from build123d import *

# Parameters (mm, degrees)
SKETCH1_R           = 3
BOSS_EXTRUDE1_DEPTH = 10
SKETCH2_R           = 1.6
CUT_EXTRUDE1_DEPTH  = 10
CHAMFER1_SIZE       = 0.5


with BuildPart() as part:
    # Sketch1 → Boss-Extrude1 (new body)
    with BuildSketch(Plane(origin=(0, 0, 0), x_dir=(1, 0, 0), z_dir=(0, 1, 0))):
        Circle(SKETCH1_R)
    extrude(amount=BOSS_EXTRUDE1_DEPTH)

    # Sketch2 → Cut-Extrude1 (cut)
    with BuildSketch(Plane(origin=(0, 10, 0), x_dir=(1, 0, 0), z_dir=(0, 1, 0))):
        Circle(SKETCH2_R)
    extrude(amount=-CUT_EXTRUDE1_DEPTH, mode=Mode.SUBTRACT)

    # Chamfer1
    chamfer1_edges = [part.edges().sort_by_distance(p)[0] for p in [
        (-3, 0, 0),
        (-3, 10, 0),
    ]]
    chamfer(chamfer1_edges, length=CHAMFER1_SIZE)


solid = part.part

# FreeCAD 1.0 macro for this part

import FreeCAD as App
import Part
import Sketcher
Q = App.Units.Quantity


def edges_at(feature, points):
    """Names of the edges that pass closest to the given points."""
    edges = feature.Shape.Edges
    near = lambda p: min(range(len(edges)), key=lambda i: edges[i].distToShape(Part.Vertex(*p))[0])
    return sorted({f"Edge{near(p) + 1}" for p in points})

doc = App.newDocument("Part")
params = doc.addObject("Spreadsheet::Sheet", "Params")
for row, (alias, value) in enumerate([
    ("sketch1_diameter", "6 mm"),
    ("pad1_length", "10 mm"),
    ("sketch2_diameter", "3.2 mm"),
    ("pocket1_length", "10 mm"),
    ("chamfer_size", "0.5 mm"),
], start=1):
    params.set(f"A{row}", alias)
    params.set(f"B{row}", "=" + value)
    params.setAlias(f"B{row}", alias)

body = doc.addObject("PartDesign::Body", "Body")

sketch1 = body.newObject("Sketcher::SketchObject", "Sketch")
sketch1.AttachmentSupport = (doc.getObject("XZ_Plane"), [""])
sketch1.MapMode = "FlatFace"
sketch1.addGeometry(Part.Circle(App.Vector(0, 0, 0), App.Vector(0, 0, 1), 3), False)
sketch1.addConstraint([
    Sketcher.Constraint("Coincident", 0, 3, -1, 1),
    Sketcher.Constraint("Diameter", 0, Q("6 mm")),
])
sketch1.setExpression("Constraints[1]", "Params.sketch1_diameter")
pad1 = body.newObject("PartDesign::Pad", "Pad")
pad1.Profile = sketch1
pad1.setExpression("Length", "Params.pad1_length")
pad1.Reversed = True

sketch2 = body.newObject("Sketcher::SketchObject", "Sketch001")
sketch2.AttachmentSupport = (doc.getObject("XZ_Plane"), [""])
sketch2.MapMode = "FlatFace"
sketch2.AttachmentOffset = App.Placement(App.Vector(0, 0, -10), App.Rotation())
sketch2.addGeometry(Part.Circle(App.Vector(0, 0, 0), App.Vector(0, 0, 1), 1.6), False)
sketch2.addConstraint([
    Sketcher.Constraint("Coincident", 0, 3, -1, 1),
    Sketcher.Constraint("Diameter", 0, Q("3.2 mm")),
])
sketch2.setExpression("Constraints[1]", "Params.sketch2_diameter")
pocket1 = body.newObject("PartDesign::Pocket", "Pocket")
pocket1.Profile = sketch2
pocket1.setExpression("Length", "Params.pocket1_length")
pocket1.Reversed = True
doc.recompute()

chamfer = body.newObject("PartDesign::Chamfer", "Chamfer")
chamfer.Base = (pocket1, edges_at(pocket1, [(-3, 0, 0), (-3, 10, 0)]))
chamfer.setExpression("Size", "Params.chamfer_size")

doc.recompute()
